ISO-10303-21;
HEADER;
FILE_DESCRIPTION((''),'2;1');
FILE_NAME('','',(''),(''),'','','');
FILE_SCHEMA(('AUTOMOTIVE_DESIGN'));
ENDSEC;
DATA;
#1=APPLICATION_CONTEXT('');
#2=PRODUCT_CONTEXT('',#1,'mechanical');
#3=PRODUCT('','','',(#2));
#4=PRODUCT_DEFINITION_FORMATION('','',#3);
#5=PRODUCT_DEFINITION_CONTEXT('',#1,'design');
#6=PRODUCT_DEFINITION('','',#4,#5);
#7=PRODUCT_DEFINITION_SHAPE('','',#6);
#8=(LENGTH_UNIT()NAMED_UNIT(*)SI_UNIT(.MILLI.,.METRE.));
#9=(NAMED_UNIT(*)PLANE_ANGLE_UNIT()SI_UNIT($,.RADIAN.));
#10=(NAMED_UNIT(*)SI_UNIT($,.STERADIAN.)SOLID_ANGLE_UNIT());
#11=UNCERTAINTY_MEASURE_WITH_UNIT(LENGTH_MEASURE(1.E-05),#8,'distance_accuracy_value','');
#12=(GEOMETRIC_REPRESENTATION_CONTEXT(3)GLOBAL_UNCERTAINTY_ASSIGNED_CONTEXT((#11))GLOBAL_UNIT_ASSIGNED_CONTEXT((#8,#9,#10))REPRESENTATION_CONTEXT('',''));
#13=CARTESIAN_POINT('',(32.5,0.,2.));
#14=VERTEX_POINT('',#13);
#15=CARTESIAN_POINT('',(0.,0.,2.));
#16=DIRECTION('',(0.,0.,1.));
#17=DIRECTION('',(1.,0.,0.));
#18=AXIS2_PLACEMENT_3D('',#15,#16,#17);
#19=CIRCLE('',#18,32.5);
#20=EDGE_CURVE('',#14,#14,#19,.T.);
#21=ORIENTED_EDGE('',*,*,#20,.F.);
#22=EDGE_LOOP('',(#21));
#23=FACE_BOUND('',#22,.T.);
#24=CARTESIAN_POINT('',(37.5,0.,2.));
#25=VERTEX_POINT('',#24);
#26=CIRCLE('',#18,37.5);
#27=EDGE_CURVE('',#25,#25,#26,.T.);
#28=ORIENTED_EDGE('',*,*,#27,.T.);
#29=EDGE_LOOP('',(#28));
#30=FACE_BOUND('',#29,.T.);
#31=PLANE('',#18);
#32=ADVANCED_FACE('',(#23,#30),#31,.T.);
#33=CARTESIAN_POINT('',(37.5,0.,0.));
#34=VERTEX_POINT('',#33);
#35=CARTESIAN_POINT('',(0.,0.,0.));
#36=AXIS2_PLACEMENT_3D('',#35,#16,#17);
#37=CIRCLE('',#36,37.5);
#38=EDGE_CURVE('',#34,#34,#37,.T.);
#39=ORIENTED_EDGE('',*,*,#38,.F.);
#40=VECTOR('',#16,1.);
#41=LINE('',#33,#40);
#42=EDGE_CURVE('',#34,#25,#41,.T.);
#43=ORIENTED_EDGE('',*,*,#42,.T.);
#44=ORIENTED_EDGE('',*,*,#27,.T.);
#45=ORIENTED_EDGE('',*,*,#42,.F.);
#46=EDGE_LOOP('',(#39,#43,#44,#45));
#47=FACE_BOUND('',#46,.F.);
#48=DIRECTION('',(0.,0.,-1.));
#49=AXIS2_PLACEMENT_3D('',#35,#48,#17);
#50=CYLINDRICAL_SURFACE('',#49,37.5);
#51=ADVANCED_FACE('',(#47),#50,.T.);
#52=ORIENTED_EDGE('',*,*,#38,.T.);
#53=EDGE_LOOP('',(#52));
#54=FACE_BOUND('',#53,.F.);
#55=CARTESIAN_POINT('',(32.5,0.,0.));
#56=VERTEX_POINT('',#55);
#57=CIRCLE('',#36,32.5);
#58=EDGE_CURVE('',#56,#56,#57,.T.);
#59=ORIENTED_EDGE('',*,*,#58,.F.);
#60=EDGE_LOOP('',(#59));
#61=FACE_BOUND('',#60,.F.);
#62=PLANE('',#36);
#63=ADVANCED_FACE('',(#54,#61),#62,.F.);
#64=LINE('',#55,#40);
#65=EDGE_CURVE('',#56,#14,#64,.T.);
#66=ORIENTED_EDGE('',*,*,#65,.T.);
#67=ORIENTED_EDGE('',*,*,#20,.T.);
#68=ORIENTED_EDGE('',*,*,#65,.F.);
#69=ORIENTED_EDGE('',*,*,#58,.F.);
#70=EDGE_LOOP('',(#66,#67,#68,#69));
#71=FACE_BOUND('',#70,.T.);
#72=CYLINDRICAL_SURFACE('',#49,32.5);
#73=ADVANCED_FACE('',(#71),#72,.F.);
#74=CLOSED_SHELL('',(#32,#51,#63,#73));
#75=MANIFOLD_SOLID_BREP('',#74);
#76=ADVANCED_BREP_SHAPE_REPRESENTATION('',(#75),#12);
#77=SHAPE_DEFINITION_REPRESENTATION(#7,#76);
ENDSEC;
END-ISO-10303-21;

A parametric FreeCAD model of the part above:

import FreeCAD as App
import Part
import Sketcher

V = App.Vector
Q = App.Units.Quantity

doc = App.newDocument("Part")
body = doc.addObject("PartDesign::Body", "Body")

sketch1 = body.newObject("Sketcher::SketchObject", "Sketch")
sketch1.AttachmentSupport = (doc.getObject("XY_Plane"), [""])
sketch1.MapMode = "FlatFace"
sketch1.addGeometry([
    Part.Circle(V(0, 0, 0), V(0, 0, 1), 37.5),
    Part.Circle(V(0, 0, 0), V(0, 0, 1), 32.5),
], False)
sketch1.addConstraint([
    Sketcher.Constraint("Coincident", 0, 3, -1, 1),
    Sketcher.Constraint("Coincident", 1, 3, -1, 1),
    Sketcher.Constraint("Diameter", 0, Q("75 mm")),
    Sketcher.Constraint("Diameter", 1, Q("65 mm")),
])
pad1 = body.newObject("PartDesign::Pad", "Pad")
pad1.Profile = sketch1
pad1.Length = 2

doc.recompute()
